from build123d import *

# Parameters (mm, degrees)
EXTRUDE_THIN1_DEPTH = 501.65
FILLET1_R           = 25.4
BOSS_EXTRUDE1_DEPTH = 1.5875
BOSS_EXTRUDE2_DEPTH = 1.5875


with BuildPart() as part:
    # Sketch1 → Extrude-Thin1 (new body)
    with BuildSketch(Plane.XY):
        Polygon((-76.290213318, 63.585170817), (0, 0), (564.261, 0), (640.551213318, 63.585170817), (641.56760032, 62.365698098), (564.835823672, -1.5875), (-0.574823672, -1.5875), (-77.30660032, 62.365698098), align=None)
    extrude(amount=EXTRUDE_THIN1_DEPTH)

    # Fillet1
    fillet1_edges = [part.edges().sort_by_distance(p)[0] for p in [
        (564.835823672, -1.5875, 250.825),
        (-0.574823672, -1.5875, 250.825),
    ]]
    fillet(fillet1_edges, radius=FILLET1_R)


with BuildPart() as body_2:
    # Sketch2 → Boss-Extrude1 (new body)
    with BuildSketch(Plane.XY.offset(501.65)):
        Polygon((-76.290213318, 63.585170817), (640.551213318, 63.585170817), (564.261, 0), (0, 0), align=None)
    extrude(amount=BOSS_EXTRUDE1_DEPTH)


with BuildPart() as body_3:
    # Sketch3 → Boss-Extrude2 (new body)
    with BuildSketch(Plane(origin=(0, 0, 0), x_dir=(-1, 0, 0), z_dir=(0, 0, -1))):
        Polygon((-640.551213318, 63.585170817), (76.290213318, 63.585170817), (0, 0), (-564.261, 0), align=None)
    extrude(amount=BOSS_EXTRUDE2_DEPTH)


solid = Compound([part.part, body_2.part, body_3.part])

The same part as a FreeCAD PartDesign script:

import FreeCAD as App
import Part
import Sketcher
Q = App.Units.Quantity


def edges_at(feature, points):
    """Names of the edges that pass closest to the given points."""
    edges = feature.Shape.Edges
    near = lambda p: min(range(len(edges)), key=lambda i: edges[i].distToShape(Part.Vertex(*p))[0])
    return sorted({f"Edge{near(p) + 1}" for p in points})

doc = App.newDocument("Part")
params = doc.addObject("Spreadsheet::Sheet", "Params")
for row, (alias, value) in enumerate([
    ("sketch1_length", "3.91 in"),
    ("sketch1_width", "22.215 in"),
    ("sketch1_length2", "0.0625 in"),
    ("pad1_length", "19.75 in"),
    ("fillet_radius", "1 in"),
    ("sketch2_length", "3.91 in"),
    ("sketch2_width", "22.215 in"),
    ("pad2_length", "0.0625 in"),
    ("sketch3_length", "3.91 in"),
    ("sketch3_width", "22.215 in"),
    ("pad3_length", "0.0625 in"),
], start=1):
    params.set(f"A{row}", alias)
    params.set(f"B{row}", "=" + value)
    params.setAlias(f"B{row}", alias)

body = doc.addObject("PartDesign::Body", "Body")

sketch1 = doc.addObject("Sketcher::SketchObject", "Sketch")
body.addObject(sketch1)
sketch1.AttachmentSupport = (doc.XY_Plane, [""])
sketch1.MapMode = "FlatFace"
sketch1.addGeometry([
    Part.LineSegment(App.Vector(0, 0, 0), App.Vector(-76.3, 63.6, 0)),
    Part.LineSegment(App.Vector(-76.3, 63.6, 0), App.Vector(-77.3, 62.4, 0)),
    Part.LineSegment(App.Vector(-77.3, 62.4, 0), App.Vector(-0.6, -1.6, 0)),
    Part.LineSegment(App.Vector(-0.6, -1.6, 0), App.Vector(564.8, -1.6, 0)),
    Part.LineSegment(App.Vector(564.8, -1.6, 0), App.Vector(641.6, 62.4, 0)),
    Part.LineSegment(App.Vector(641.6, 62.4, 0), App.Vector(640.6, 63.6, 0)),
    Part.LineSegment(App.Vector(640.6, 63.6, 0), App.Vector(564.3, 0, 0)),
    Part.LineSegment(App.Vector(564.3, 0, 0), App.Vector(0, 0, 0)),
], False)
sketch1.addConstraint([
    Sketcher.Constraint("Coincident", 0, 2, 1, 1),
    Sketcher.Constraint("Coincident", 1, 2, 2, 1),
    Sketcher.Constraint("Coincident", 2, 2, 3, 1),
    Sketcher.Constraint("Coincident", 3, 2, 4, 1),
    Sketcher.Constraint("Coincident", 4, 2, 5, 1),
    Sketcher.Constraint("Coincident", 5, 2, 6, 1),
    Sketcher.Constraint("Coincident", 6, 2, 7, 1),
    Sketcher.Constraint("Coincident", 7, 2, 0, 1),
    Sketcher.Constraint("Horizontal", 3),
    Sketcher.Constraint("Horizontal", 7),
    Sketcher.Constraint("Coincident", 7, 2, -1, 1),
    Sketcher.Constraint("Perpendicular", 0, 1),
    Sketcher.Constraint("Perpendicular", 1, 2),
    Sketcher.Constraint("Perpendicular", 4, 5),
    Sketcher.Constraint("Perpendicular", 5, 6),
    Sketcher.Constraint("Horizontal", 1, 2, 4, 2),
    Sketcher.Constraint("Horizontal", 0, 2, 5, 2),
    Sketcher.Constraint("Equal", 2, 4),
    Sketcher.Constraint("Distance", 0, Q("3.91 in")),
    Sketcher.Constraint("DistanceX", 7, 2, 7, 1, Q("22.215 in")),
    Sketcher.Constraint("Angle", 0, Q("140.19 deg")),
    Sketcher.Constraint("Distance", 1, Q("0.0625 in")),
    Sketcher.Constraint("DistanceY", 2, 2, -1, 1, Q("0.0625 in")),
])
sketch1.setExpression("Constraints[18]", "Params.sketch1_length")
sketch1.setExpression("Constraints[19]", "Params.sketch1_width")
sketch1.setExpression("Constraints[21]", "Params.sketch1_length2")
pad1 = doc.addObject("PartDesign::Pad", "Pad")
body.addObject(pad1)
pad1.Profile = sketch1
pad1.setExpression("Length", "Params.pad1_length")
doc.recompute()

fillet = doc.addObject("PartDesign::Fillet", "Fillet")
body.addObject(fillet)
fillet.Base = (pad1, edges_at(pad1, [(564.836, -1.587, 250.825), (-0.575, -1.587, 250.825)]))
fillet.setExpression("Radius", "Params.fillet_radius")
body2 = doc.addObject("PartDesign::Body", "Body001")

sketch2 = doc.addObject("Sketcher::SketchObject", "Sketch001")
body2.addObject(sketch2)
sketch2.AttachmentSupport = (doc.getObject("XY_Plane001"), [""])
sketch2.MapMode = "FlatFace"
sketch2.AttachmentOffset = App.Placement(App.Vector(0, 0, 19.75 * 25.4), App.Rotation())
sketch2.addGeometry([
    Part.LineSegment(App.Vector(641, 64, 0), App.Vector(-76, 64, 0)),
    Part.LineSegment(App.Vector(-76, 64, 0), App.Vector(0, 0, 0)),
    Part.LineSegment(App.Vector(0, 0, 0), App.Vector(564, 0, 0)),
    Part.LineSegment(App.Vector(564, 0, 0), App.Vector(641, 64, 0)),
], False)
sketch2.addConstraint([
    Sketcher.Constraint("Coincident", 0, 2, 1, 1),
    Sketcher.Constraint("Coincident", 1, 2, 2, 1),
    Sketcher.Constraint("Coincident", 2, 2, 3, 1),
    Sketcher.Constraint("Coincident", 3, 2, 0, 1),
    Sketcher.Constraint("Horizontal", 0),
    Sketcher.Constraint("Horizontal", 2),
    Sketcher.Constraint("Coincident", 1, 2, -1, 1),
    Sketcher.Constraint("Equal", 1, 3),
    Sketcher.Constraint("Distance", 1, Q("3.91 in")),
    Sketcher.Constraint("DistanceX", 2, 1, 2, 2, Q("22.215 in")),
    Sketcher.Constraint("Angle", 1, Q("-39.81 deg")),
])
sketch2.setExpression("Constraints[8]", "Params.sketch2_length")
sketch2.setExpression("Constraints[9]", "Params.sketch2_width")
pad2 = doc.addObject("PartDesign::Pad", "Pad001")
body2.addObject(pad2)
pad2.Profile = sketch2
pad2.setExpression("Length", "Params.pad2_length")
body3 = doc.addObject("PartDesign::Body", "Body002")

sketch3 = doc.addObject("Sketcher::SketchObject", "Sketch002")
body3.addObject(sketch3)
sketch3.AttachmentSupport = (doc.getObject("XY_Plane002"), [""])
sketch3.MapMode = "FlatFace"
sketch3.addGeometry([
    Part.LineSegment(App.Vector(-76, 64, 0), App.Vector(641, 64, 0)),
    Part.LineSegment(App.Vector(641, 64, 0), App.Vector(564, 0, 0)),
    Part.LineSegment(App.Vector(564, 0, 0), App.Vector(0, 0, 0)),
    Part.LineSegment(App.Vector(0, 0, 0), App.Vector(-76, 64, 0)),
], False)
sketch3.addConstraint([
    Sketcher.Constraint("Coincident", 0, 2, 1, 1),
    Sketcher.Constraint("Coincident", 1, 2, 2, 1),
    Sketcher.Constraint("Coincident", 2, 2, 3, 1),
    Sketcher.Constraint("Coincident", 3, 2, 0, 1),
    Sketcher.Constraint("Horizontal", 0),
    Sketcher.Constraint("Horizontal", 2),
    Sketcher.Constraint("Coincident", 2, 2, -1, 1),
    Sketcher.Constraint("Equal", 1, 3),
    Sketcher.Constraint("Distance", 1, Q("3.91 in")),
    Sketcher.Constraint("DistanceX", 2, 2, 2, 1, Q("22.215 in")),
    Sketcher.Constraint("Angle", 1, Q("-140.19 deg")),
])
sketch3.setExpression("Constraints[8]", "Params.sketch3_length")
sketch3.setExpression("Constraints[9]", "Params.sketch3_width")
pad3 = doc.addObject("PartDesign::Pad", "Pad002")
body3.addObject(pad3)
pad3.Profile = sketch3
pad3.setExpression("Length", "Params.pad3_length")
pad3.Reversed = True

doc.recompute()
